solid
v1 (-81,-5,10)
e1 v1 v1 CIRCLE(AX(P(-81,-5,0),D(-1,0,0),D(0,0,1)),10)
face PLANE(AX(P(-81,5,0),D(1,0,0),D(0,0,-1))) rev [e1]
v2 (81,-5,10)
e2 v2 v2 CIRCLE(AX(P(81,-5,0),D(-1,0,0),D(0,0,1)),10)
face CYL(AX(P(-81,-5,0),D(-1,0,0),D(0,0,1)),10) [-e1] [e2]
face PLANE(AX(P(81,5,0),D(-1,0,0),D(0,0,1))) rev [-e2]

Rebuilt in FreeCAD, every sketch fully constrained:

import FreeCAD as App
import Part
import Sketcher


def add_polygon(sketch, points):
    """Adds a closed chain of lines whose ends are joined by coincident constraints."""
    first, n = sketch.GeometryCount, len(points)
    for a, b in zip(points, points[1:] + points[:1]):
        sketch.addGeometry(Part.LineSegment(App.Vector(*a, 0), App.Vector(*b, 0)), False)
    for i in range(n):
        sketch.addConstraint(Sketcher.Constraint("Coincident", first + i, 2, first + (i + 1) % n, 1))

doc = App.newDocument("Part")
params = doc.addObject("Spreadsheet::Sheet", "Params")
for row, (alias, value) in enumerate([
    ("sketch1_width", "162 mm"),
    ("sketch1_height", "10 mm"),
    ("revolution_angle", "360 deg"),
], start=1):
    params.set(f"A{row}", alias)
    params.set(f"B{row}", "=" + value)
    params.setAlias(f"B{row}", alias)

body = doc.addObject("PartDesign::Body", "Body")

# Sketch on XY plane
sketch1 = body.newObject("Sketcher::SketchObject", "Sketch")
sketch1.AttachmentSupport = (doc.getObject("XY_Plane"), [""])
sketch1.MapMode = "FlatFace"
add_polygon(sketch1, [(-81, 5), (-81, -5), (81, -5), (81, 5)])  # lines 0-3
sketch1.addGeometry(Part.LineSegment(App.Vector(-81, -5, 0), App.Vector(81, -5, 0)), True)  # axis
sketch1.addConstraint(Sketcher.Constraint("Vertical", 0))
sketch1.addConstraint(Sketcher.Constraint("Horizontal", 1))
sketch1.addConstraint(Sketcher.Constraint("Vertical", 2))
sketch1.addConstraint(Sketcher.Constraint("Horizontal", 3))
sketch1.addConstraint(Sketcher.Constraint("Horizontal", 4))
sketch1.addConstraint(Sketcher.Constraint("Coincident", 4, 1, 0, 2))
sketch1.addConstraint(Sketcher.Constraint("Symmetric", 0, 2, 2, 2, -1, 1))
sketch1.addConstraint(Sketcher.Constraint("Vertical", 2, 2, 4, 2))
sketch1.addConstraint(Sketcher.Constraint("DistanceX", 1, 1, 1, 2, 162.0))
sketch1.addConstraint(Sketcher.Constraint("DistanceY", 0, 2, 0, 1, 10.0))
sketch1.setExpression("Constraints[12]", "Params.sketch1_width")
sketch1.setExpression("Constraints[13]", "Params.sketch1_height")
revolution = body.newObject("PartDesign::Revolution", "Revolution")
revolution.Profile = sketch1
revolution.ReferenceAxis = (sketch1, ["Axis0"])
revolution.setExpression("Angle", "Params.revolution_angle")

doc.recompute()
